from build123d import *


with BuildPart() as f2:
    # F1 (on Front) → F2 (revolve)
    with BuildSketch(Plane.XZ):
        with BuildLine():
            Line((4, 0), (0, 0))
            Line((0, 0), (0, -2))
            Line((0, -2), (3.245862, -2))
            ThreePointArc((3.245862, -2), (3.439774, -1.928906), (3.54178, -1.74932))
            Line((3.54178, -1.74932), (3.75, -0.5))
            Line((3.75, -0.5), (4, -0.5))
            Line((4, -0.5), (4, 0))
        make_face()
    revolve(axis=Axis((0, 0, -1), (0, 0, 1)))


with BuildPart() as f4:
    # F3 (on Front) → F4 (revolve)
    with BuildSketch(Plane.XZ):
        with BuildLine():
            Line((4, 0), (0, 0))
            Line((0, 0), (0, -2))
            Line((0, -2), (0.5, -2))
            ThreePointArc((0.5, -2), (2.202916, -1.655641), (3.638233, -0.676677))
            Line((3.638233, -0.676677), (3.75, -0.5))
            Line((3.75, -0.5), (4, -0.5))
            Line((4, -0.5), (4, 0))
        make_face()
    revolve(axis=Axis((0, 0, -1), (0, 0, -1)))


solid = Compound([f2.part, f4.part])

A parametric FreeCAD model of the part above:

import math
import FreeCAD as App
import Part
import Sketcher
Q = App.Units.Quantity

doc = App.newDocument("Part")
body = doc.addObject("PartDesign::Body", "Body")

# Sketch on XZ plane
sketch1 = body.newObject("Sketcher::SketchObject", "Sketch")
sketch1.AttachmentSupport = (doc.getObject("XZ_Plane"), [""])
sketch1.MapMode = "FlatFace"
sketch1.addGeometry([
    Part.LineSegment(App.Vector(4, 0, 0), App.Vector(0, 0, 0)),  # 0
    Part.LineSegment(App.Vector(0, 0, 0), App.Vector(0, -2, 0)),  # 1
    Part.LineSegment(App.Vector(0, -2, 0), App.Vector(3.25, -2, 0)),  # 2
    Part.ArcOfCircle(Part.Circle(App.Vector(3.25, -1.7, 0), App.Vector(0, 0, 1), 0.3), math.radians(-90), math.radians(-9)),  # 3
    Part.LineSegment(App.Vector(3.54, -1.75, 0), App.Vector(3.75, -0.5, 0)),  # 4
    Part.LineSegment(App.Vector(3.75, -0.5, 0), App.Vector(4, -0.5, 0)),  # 5
    Part.LineSegment(App.Vector(4, -0.5, 0), App.Vector(4, 0, 0)),  # 6
], False)
sketch1.addConstraint([
    Sketcher.Constraint("Coincident", 0, 2, 1, 1),
    Sketcher.Constraint("Coincident", 1, 2, 2, 1),
    Sketcher.Constraint("Coincident", 2, 2, 3, 1),
    Sketcher.Constraint("Coincident", 3, 2, 4, 1),
    Sketcher.Constraint("Coincident", 4, 2, 5, 1),
    Sketcher.Constraint("Coincident", 5, 2, 6, 1),
    Sketcher.Constraint("Coincident", 6, 2, 0, 1),
    Sketcher.Constraint("Horizontal", 0),
    Sketcher.Constraint("Vertical", 1),
    Sketcher.Constraint("Horizontal", 2),
    Sketcher.Constraint("Horizontal", 5),
    Sketcher.Constraint("Vertical", 6),
    Sketcher.Constraint("Coincident", 0, 2, -1, 1),
    Sketcher.Constraint("Vertical", 3, 3, 2, 2),
    Sketcher.Constraint("Radius", 3, Q("0.300001 mm")),
    Sketcher.Constraint("DistanceX", 0, 2, 0, 1, Q("4 mm")),
    Sketcher.Constraint("DistanceY", 1, 2, 1, 1, Q("2 mm")),
    Sketcher.Constraint("DistanceY", 6, 1, 6, 2, Q("0.5 mm")),
    Sketcher.Constraint("DistanceX", 5, 1, 5, 2, Q("0.25 mm")),
    Sketcher.Constraint("DistanceX", 2, 1, 2, 2, Q("3.245862 mm")),
    Sketcher.Constraint("DistanceX", -1, 1, 3, 2, Q("3.54178 mm")),
])
revolution = body.newObject("PartDesign::Revolution", "Revolution")
revolution.Profile = sketch1
revolution.ReferenceAxis = (sketch1, ["V_Axis"])
revolution.Angle = 360
body2 = doc.addObject("PartDesign::Body", "Body001")

# Sketch on XZ plane
sketch2 = body2.newObject("Sketcher::SketchObject", "Sketch001")
sketch2.AttachmentSupport = (doc.getObject("XZ_Plane001"), [""])
sketch2.MapMode = "FlatFace"
sketch2.addGeometry([
    Part.LineSegment(App.Vector(4, 0, 0), App.Vector(0, 0, 0)),  # 0
    Part.LineSegment(App.Vector(0, 0, 0), App.Vector(0, -2, 0)),  # 1
    Part.LineSegment(App.Vector(0, -2, 0), App.Vector(0.5, -2, 0)),  # 2
    Part.ArcOfCircle(Part.Circle(App.Vector(0.5, 2.38, 0), App.Vector(0, 0, 1), 4.38), math.radians(-90), math.radians(-44)),  # 3
    Part.LineSegment(App.Vector(3.64, -0.68, 0), App.Vector(3.75, -0.5, 0)),  # 4
    Part.LineSegment(App.Vector(3.75, -0.5, 0), App.Vector(4, -0.5, 0)),  # 5
    Part.LineSegment(App.Vector(4, -0.5, 0), App.Vector(4, 0, 0)),  # 6
], False)
sketch2.addConstraint([
    Sketcher.Constraint("Coincident", 0, 2, 1, 1),
    Sketcher.Constraint("Coincident", 1, 2, 2, 1),
    Sketcher.Constraint("Tangent", 2, 2, 3, 1),
    Sketcher.Constraint("Coincident", 3, 2, 4, 1),
    Sketcher.Constraint("Coincident", 4, 2, 5, 1),
    Sketcher.Constraint("Coincident", 5, 2, 6, 1),
    Sketcher.Constraint("Coincident", 6, 2, 0, 1),
    Sketcher.Constraint("Horizontal", 0),
    Sketcher.Constraint("Vertical", 1),
    Sketcher.Constraint("Horizontal", 2),
    Sketcher.Constraint("Horizontal", 5),
    Sketcher.Constraint("Vertical", 6),
    Sketcher.Constraint("Coincident", 0, 2, -1, 1),
    Sketcher.Constraint("Equal", 2, 6),
    Sketcher.Constraint("DistanceX", 0, 2, 0, 1, Q("4 mm")),
    Sketcher.Constraint("DistanceY", 1, 2, 1, 1, Q("2 mm")),
    Sketcher.Constraint("DistanceX", 2, 1, 2, 2, Q("0.5 mm")),
    Sketcher.Constraint("DistanceX", 5, 1, 5, 2, Q("0.25 mm")),
    Sketcher.Constraint("Radius", 3, Q("4.382788 mm")),
    Sketcher.Constraint("Distance", 4, Q("0.209061 mm")),
])
revolution2 = body2.newObject("PartDesign::Revolution", "Revolution001")
revolution2.Profile = sketch2
revolution2.ReferenceAxis = (sketch2, ["V_Axis"])
revolution2.Angle = 360

doc.recompute()
